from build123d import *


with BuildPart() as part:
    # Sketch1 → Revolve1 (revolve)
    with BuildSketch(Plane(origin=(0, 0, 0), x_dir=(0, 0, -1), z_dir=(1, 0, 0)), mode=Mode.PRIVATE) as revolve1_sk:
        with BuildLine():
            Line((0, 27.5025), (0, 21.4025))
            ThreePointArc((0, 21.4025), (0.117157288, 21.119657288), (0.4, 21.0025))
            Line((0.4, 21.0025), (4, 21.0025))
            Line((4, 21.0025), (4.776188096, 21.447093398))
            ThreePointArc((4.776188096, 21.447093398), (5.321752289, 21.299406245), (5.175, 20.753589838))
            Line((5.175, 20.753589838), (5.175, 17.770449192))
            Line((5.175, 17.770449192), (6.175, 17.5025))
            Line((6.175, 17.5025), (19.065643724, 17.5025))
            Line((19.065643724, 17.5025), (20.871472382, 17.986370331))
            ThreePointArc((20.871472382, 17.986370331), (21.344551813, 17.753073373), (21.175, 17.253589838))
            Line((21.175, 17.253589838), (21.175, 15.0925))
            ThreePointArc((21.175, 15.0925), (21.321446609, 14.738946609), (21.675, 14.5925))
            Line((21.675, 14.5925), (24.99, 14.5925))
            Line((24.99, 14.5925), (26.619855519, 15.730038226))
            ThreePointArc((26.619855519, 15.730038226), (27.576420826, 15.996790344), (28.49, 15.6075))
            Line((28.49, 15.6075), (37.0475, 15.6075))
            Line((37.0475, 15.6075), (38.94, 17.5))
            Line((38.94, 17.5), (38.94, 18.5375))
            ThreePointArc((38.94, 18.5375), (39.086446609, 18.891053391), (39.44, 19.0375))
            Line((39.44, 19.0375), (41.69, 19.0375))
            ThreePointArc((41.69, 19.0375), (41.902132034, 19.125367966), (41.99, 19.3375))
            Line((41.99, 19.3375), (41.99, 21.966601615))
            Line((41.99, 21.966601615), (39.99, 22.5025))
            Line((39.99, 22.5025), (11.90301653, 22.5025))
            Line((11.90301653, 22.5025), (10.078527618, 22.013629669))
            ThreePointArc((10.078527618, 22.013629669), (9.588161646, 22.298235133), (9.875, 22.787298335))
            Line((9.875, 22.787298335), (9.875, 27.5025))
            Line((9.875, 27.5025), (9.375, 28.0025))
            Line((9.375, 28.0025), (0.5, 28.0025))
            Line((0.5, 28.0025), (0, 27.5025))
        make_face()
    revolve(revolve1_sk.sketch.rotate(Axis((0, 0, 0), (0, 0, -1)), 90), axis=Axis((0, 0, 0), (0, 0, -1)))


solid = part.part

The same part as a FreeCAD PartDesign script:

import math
import FreeCAD as App
import Part
import Sketcher
from FreeCAD import Vector
Q = App.Units.Quantity

doc = App.newDocument("Part")
params = doc.addObject("Spreadsheet::Sheet", "Params")
for row, (alias, value) in enumerate([
    ("sketch1_radius", "0.4 mm"),
    ("sketch1_radius2", "0.5 mm"),
    ("sketch1_radius3", "1.5 mm"),
    ("sketch1_radius4", "0.3 mm"),
    ("sketch1_width", "6.1 mm"),
    ("revolution_angle", "360 deg"),
], start=1):
    params.set(f"A{row}", alias)
    params.set(f"B{row}", "=" + value)
    params.setAlias(f"B{row}", alias)

body = doc.addObject("PartDesign::Body", "Body")

sketch1 = body.newObject("Sketcher::SketchObject", "Sketch")
sketch1.AttachmentSupport = (doc.getObject("YZ_Plane"), [""])
sketch1.MapMode = "FlatFace"
sketch1.addGeometry([
    Part.LineSegment(Vector(27.5, 0, 0), Vector(21.4, 0, 0)),
    Part.ArcOfCircle(Part.Circle(Vector(21.4, -0.4, 0), Vector(0, 0, 1), 0.4), math.radians(90), math.radians(180)),
    Part.LineSegment(Vector(21, -0.4, 0), Vector(21, -4, 0)),
    Part.LineSegment(Vector(21, -4, 0), Vector(21.45, -4.78, 0)),
    Part.ArcOfCircle(Part.Circle(Vector(21.1, -4.97, 0), Vector(0, 0, 1), 0.4), math.radians(-150), math.radians(30)),
    Part.LineSegment(Vector(20.75, -5.17, 0), Vector(17.77, -5.17, 0)),
    Part.LineSegment(Vector(17.77, -5.17, 0), Vector(17.5, -6.17, 0)),
    Part.LineSegment(Vector(17.5, -6.17, 0), Vector(17.5, -19.07, 0)),
    Part.LineSegment(Vector(17.5, -19.07, 0), Vector(17.99, -20.87, 0)),
    Part.ArcOfCircle(Part.Circle(Vector(17.6, -20.98, 0), Vector(0, 0, 1), 0.4), math.radians(-150), math.radians(15)),
    Part.LineSegment(Vector(17.25, -21.18, 0), Vector(15.09, -21.18, 0)),
    Part.ArcOfCircle(Part.Circle(Vector(15.09, -21.67, 0), Vector(0, 0, 1), 0.5), math.radians(90), math.radians(180)),
    Part.LineSegment(Vector(14.59, -21.68, 0), Vector(14.59, -24.99, 0)),
    Part.LineSegment(Vector(14.59, -24.99, 0), Vector(15.73, -26.62, 0)),
    Part.ArcOfCircle(Part.Circle(Vector(14.5, -27.48, 0), Vector(0, 0, 1), 1.5), math.radians(-42), math.radians(35)),
    Part.LineSegment(Vector(15.61, -28.49, 0), Vector(15.61, -37.05, 0)),
    Part.LineSegment(Vector(15.61, -37.05, 0), Vector(17.5, -38.94, 0)),
    Part.LineSegment(Vector(17.5, -38.94, 0), Vector(18.54, -38.94, 0)),
    Part.ArcOfCircle(Part.Circle(Vector(18.54, -39.44, 0), Vector(0, 0, 1), 0.5), math.radians(0), math.radians(90)),
    Part.LineSegment(Vector(19.04, -39.44, 0), Vector(19.04, -41.69, 0)),
    Part.ArcOfCircle(Part.Circle(Vector(19.34, -41.69, 0), Vector(0, 0, 1), 0.3), math.radians(-180), math.radians(-90)),
    Part.LineSegment(Vector(19.34, -41.99, 0), Vector(21.97, -41.99, 0)),
    Part.LineSegment(Vector(21.97, -41.99, 0), Vector(22.5, -39.99, 0)),
    Part.LineSegment(Vector(22.5, -39.99, 0), Vector(22.5, -11.9, 0)),
    Part.LineSegment(Vector(22.5, -11.9, 0), Vector(22.01, -10.08, 0)),
    Part.ArcOfCircle(Part.Circle(Vector(22.4, -9.97, 0), Vector(0, 0, 1), 0.4), math.radians(14), math.radians(195)),
    Part.LineSegment(Vector(22.79, -9.88, 0), Vector(27.5, -9.88, 0)),
    Part.LineSegment(Vector(27.5, -9.88, 0), Vector(28, -9.38, 0)),
    Part.LineSegment(Vector(28, -9.38, 0), Vector(28, -0.5, 0)),
    Part.LineSegment(Vector(28, -0.5, 0), Vector(27.5, 0, 0)),
], False)
sketch1.addConstraint([
    Sketcher.Constraint("Tangent", 0, 2, 1, 1),
    Sketcher.Constraint("Tangent", 1, 2, 2, 1),
    Sketcher.Constraint("Coincident", 2, 2, 3, 1),
    Sketcher.Constraint("Tangent", 3, 2, 4, 2),
    Sketcher.Constraint("Coincident", 4, 1, 5, 1),
    Sketcher.Constraint("Coincident", 5, 2, 6, 1),
    Sketcher.Constraint("Coincident", 6, 2, 7, 1),
    Sketcher.Constraint("Coincident", 7, 2, 8, 1),
    Sketcher.Constraint("Tangent", 8, 2, 9, 2),
    Sketcher.Constraint("Coincident", 9, 1, 10, 1),
    Sketcher.Constraint("Tangent", 10, 2, 11, 1),
    Sketcher.Constraint("Tangent", 11, 2, 12, 1),
    Sketcher.Constraint("Coincident", 12, 2, 13, 1),
    Sketcher.Constraint("Tangent", 13, 2, 14, 2),
    Sketcher.Constraint("Coincident", 14, 1, 15, 1),
    Sketcher.Constraint("Coincident", 15, 2, 16, 1),
    Sketcher.Constraint("Coincident", 16, 2, 17, 1),
    Sketcher.Constraint("Tangent", 17, 2, 18, 2),
    Sketcher.Constraint("Tangent", 18, 1, 19, 1),
    Sketcher.Constraint("Tangent", 19, 2, 20, 1),
    Sketcher.Constraint("Tangent", 20, 2, 21, 1),
    Sketcher.Constraint("Coincident", 21, 2, 22, 1),
    Sketcher.Constraint("Coincident", 22, 2, 23, 1),
    Sketcher.Constraint("Coincident", 23, 2, 24, 1),
    Sketcher.Constraint("Tangent", 24, 2, 25, 2),
    Sketcher.Constraint("Coincident", 25, 1, 26, 1),
    Sketcher.Constraint("Coincident", 26, 2, 27, 1),
    Sketcher.Constraint("Coincident", 27, 2, 28, 1),
    Sketcher.Constraint("Coincident", 28, 2, 29, 1),
    Sketcher.Constraint("Coincident", 29, 2, 0, 1),
    Sketcher.Constraint("Horizontal", 0),
    Sketcher.Constraint("Vertical", 2),
    Sketcher.Constraint("Horizontal", 5),
    Sketcher.Constraint("Vertical", 7),
    Sketcher.Constraint("Horizontal", 10),
    Sketcher.Constraint("Vertical", 12),
    Sketcher.Constraint("Vertical", 15),
    Sketcher.Constraint("Horizontal", 17),
    Sketcher.Constraint("Vertical", 19),
    Sketcher.Constraint("Horizontal", 21),
    Sketcher.Constraint("Vertical", 23),
    Sketcher.Constraint("Horizontal", 26),
    Sketcher.Constraint("Vertical", 28),
    Sketcher.Constraint("Equal", 1, 4),
    Sketcher.Constraint("Equal", 4, 9),
    Sketcher.Constraint("Equal", 11, 18),
    Sketcher.Constraint("Equal", 9, 25),
    Sketcher.Constraint("PointOnObject", 0, 2, -1),
    Sketcher.Constraint("Parallel", 6, 22),
    Sketcher.Constraint("Parallel", 8, 24),
    Sketcher.Constraint("Perpendicular", 16, 27),
    Sketcher.Constraint("Perpendicular", 27, 29),
    Sketcher.Constraint("Vertical", 26, 2, 29, 2),
    Sketcher.Constraint("Equal", 27, 29),
    Sketcher.Constraint("Radius", 1, 0.4),
    Sketcher.Constraint("Radius", 11, 0.5),
    Sketcher.Constraint("Radius", 14, 1.5),
    Sketcher.Constraint("Radius", 20, 0.3),
    Sketcher.Constraint("Angle", 6, Q("-105 deg")),
    Sketcher.Constraint("Angle", 8, Q("-75 deg")),
    Sketcher.Constraint("DistanceX", 0, 2, 0, 1, 6.1),
    Sketcher.Constraint("DistanceY", 2, 2, 2, 1, 3.6),
    Sketcher.Constraint("DistanceY", 9, 3, 4, 3, 16.0),
    Sketcher.Constraint("DistanceY", 25, 3, 4, 3, 5.0),
    Sketcher.Constraint("DistanceY", 6, 2, 5, 2, 1.0),
    Sketcher.Constraint("DistanceX", 14, 3, 16, 2, 3.0),
    Sketcher.Constraint("DistanceY", 21, 2, 22, 2, 2.0),
    Sketcher.Constraint("DistanceX", 6, 2, 23, 2, 5.0),
    Sketcher.Constraint("DistanceX", 23, 2, 26, 2, 5.0),
    Sketcher.Constraint("DistanceX", 1, 2, 28, 2, 7.0),
    Sketcher.Constraint("DistanceY", 19, 2, 19, 1, 2.25),
    Sketcher.Constraint("DistanceX", -1, 1, 4, 3, 21.1),
    Sketcher.Constraint("DistanceX", -1, 1, 9, 3, 17.6),
    Sketcher.Constraint("DistanceX", -1, 1, 14, 3, 14.5),
    Sketcher.Constraint("DistanceX", -1, 1, 25, 3, 22.4),
    Sketcher.Constraint("DistanceY", 11, 3, 9, 3, 0.7),
    Sketcher.Constraint("DistanceY", 4, 1, 4, 3, 0.2),
    Sketcher.Constraint("DistanceY", 14, 1, 12, 2, 3.5),
    Sketcher.Constraint("DistanceY", 25, 3, 25, 1, 0.1),
    Sketcher.Constraint("DistanceY", 12, 2, 12, 1, 3.315),
    Sketcher.Constraint("DistanceY", 28, 1, 28, 2, 8.875),
    Sketcher.Constraint("DistanceY", 18, 3, -1, 1, 39.44),
    Sketcher.Constraint("DistanceX", 11, 3, 1, 3, 6.31),
    Sketcher.Constraint("DistanceX", 15, 2, 18, 3, 2.93),
    Sketcher.Constraint("DistanceX", 17, 1, 17, 2, 1.0375),
    Sketcher.Constraint("DistanceX", 21, 1, 21, 2, 2.629102),
])
sketch1.setExpression("Constraints[54]", "Params.sketch1_radius")
sketch1.setExpression("Constraints[55]", "Params.sketch1_radius2")
sketch1.setExpression("Constraints[56]", "Params.sketch1_radius3")
sketch1.setExpression("Constraints[57]", "Params.sketch1_radius4")
sketch1.setExpression("Constraints[60]", "Params.sketch1_width")
revolution = body.newObject("PartDesign::Revolution", "Revolution")
revolution.Profile = sketch1
revolution.ReferenceAxis = (sketch1, ["V_Axis"])
revolution.setExpression("Angle", "Params.revolution_angle")

doc.recompute()
